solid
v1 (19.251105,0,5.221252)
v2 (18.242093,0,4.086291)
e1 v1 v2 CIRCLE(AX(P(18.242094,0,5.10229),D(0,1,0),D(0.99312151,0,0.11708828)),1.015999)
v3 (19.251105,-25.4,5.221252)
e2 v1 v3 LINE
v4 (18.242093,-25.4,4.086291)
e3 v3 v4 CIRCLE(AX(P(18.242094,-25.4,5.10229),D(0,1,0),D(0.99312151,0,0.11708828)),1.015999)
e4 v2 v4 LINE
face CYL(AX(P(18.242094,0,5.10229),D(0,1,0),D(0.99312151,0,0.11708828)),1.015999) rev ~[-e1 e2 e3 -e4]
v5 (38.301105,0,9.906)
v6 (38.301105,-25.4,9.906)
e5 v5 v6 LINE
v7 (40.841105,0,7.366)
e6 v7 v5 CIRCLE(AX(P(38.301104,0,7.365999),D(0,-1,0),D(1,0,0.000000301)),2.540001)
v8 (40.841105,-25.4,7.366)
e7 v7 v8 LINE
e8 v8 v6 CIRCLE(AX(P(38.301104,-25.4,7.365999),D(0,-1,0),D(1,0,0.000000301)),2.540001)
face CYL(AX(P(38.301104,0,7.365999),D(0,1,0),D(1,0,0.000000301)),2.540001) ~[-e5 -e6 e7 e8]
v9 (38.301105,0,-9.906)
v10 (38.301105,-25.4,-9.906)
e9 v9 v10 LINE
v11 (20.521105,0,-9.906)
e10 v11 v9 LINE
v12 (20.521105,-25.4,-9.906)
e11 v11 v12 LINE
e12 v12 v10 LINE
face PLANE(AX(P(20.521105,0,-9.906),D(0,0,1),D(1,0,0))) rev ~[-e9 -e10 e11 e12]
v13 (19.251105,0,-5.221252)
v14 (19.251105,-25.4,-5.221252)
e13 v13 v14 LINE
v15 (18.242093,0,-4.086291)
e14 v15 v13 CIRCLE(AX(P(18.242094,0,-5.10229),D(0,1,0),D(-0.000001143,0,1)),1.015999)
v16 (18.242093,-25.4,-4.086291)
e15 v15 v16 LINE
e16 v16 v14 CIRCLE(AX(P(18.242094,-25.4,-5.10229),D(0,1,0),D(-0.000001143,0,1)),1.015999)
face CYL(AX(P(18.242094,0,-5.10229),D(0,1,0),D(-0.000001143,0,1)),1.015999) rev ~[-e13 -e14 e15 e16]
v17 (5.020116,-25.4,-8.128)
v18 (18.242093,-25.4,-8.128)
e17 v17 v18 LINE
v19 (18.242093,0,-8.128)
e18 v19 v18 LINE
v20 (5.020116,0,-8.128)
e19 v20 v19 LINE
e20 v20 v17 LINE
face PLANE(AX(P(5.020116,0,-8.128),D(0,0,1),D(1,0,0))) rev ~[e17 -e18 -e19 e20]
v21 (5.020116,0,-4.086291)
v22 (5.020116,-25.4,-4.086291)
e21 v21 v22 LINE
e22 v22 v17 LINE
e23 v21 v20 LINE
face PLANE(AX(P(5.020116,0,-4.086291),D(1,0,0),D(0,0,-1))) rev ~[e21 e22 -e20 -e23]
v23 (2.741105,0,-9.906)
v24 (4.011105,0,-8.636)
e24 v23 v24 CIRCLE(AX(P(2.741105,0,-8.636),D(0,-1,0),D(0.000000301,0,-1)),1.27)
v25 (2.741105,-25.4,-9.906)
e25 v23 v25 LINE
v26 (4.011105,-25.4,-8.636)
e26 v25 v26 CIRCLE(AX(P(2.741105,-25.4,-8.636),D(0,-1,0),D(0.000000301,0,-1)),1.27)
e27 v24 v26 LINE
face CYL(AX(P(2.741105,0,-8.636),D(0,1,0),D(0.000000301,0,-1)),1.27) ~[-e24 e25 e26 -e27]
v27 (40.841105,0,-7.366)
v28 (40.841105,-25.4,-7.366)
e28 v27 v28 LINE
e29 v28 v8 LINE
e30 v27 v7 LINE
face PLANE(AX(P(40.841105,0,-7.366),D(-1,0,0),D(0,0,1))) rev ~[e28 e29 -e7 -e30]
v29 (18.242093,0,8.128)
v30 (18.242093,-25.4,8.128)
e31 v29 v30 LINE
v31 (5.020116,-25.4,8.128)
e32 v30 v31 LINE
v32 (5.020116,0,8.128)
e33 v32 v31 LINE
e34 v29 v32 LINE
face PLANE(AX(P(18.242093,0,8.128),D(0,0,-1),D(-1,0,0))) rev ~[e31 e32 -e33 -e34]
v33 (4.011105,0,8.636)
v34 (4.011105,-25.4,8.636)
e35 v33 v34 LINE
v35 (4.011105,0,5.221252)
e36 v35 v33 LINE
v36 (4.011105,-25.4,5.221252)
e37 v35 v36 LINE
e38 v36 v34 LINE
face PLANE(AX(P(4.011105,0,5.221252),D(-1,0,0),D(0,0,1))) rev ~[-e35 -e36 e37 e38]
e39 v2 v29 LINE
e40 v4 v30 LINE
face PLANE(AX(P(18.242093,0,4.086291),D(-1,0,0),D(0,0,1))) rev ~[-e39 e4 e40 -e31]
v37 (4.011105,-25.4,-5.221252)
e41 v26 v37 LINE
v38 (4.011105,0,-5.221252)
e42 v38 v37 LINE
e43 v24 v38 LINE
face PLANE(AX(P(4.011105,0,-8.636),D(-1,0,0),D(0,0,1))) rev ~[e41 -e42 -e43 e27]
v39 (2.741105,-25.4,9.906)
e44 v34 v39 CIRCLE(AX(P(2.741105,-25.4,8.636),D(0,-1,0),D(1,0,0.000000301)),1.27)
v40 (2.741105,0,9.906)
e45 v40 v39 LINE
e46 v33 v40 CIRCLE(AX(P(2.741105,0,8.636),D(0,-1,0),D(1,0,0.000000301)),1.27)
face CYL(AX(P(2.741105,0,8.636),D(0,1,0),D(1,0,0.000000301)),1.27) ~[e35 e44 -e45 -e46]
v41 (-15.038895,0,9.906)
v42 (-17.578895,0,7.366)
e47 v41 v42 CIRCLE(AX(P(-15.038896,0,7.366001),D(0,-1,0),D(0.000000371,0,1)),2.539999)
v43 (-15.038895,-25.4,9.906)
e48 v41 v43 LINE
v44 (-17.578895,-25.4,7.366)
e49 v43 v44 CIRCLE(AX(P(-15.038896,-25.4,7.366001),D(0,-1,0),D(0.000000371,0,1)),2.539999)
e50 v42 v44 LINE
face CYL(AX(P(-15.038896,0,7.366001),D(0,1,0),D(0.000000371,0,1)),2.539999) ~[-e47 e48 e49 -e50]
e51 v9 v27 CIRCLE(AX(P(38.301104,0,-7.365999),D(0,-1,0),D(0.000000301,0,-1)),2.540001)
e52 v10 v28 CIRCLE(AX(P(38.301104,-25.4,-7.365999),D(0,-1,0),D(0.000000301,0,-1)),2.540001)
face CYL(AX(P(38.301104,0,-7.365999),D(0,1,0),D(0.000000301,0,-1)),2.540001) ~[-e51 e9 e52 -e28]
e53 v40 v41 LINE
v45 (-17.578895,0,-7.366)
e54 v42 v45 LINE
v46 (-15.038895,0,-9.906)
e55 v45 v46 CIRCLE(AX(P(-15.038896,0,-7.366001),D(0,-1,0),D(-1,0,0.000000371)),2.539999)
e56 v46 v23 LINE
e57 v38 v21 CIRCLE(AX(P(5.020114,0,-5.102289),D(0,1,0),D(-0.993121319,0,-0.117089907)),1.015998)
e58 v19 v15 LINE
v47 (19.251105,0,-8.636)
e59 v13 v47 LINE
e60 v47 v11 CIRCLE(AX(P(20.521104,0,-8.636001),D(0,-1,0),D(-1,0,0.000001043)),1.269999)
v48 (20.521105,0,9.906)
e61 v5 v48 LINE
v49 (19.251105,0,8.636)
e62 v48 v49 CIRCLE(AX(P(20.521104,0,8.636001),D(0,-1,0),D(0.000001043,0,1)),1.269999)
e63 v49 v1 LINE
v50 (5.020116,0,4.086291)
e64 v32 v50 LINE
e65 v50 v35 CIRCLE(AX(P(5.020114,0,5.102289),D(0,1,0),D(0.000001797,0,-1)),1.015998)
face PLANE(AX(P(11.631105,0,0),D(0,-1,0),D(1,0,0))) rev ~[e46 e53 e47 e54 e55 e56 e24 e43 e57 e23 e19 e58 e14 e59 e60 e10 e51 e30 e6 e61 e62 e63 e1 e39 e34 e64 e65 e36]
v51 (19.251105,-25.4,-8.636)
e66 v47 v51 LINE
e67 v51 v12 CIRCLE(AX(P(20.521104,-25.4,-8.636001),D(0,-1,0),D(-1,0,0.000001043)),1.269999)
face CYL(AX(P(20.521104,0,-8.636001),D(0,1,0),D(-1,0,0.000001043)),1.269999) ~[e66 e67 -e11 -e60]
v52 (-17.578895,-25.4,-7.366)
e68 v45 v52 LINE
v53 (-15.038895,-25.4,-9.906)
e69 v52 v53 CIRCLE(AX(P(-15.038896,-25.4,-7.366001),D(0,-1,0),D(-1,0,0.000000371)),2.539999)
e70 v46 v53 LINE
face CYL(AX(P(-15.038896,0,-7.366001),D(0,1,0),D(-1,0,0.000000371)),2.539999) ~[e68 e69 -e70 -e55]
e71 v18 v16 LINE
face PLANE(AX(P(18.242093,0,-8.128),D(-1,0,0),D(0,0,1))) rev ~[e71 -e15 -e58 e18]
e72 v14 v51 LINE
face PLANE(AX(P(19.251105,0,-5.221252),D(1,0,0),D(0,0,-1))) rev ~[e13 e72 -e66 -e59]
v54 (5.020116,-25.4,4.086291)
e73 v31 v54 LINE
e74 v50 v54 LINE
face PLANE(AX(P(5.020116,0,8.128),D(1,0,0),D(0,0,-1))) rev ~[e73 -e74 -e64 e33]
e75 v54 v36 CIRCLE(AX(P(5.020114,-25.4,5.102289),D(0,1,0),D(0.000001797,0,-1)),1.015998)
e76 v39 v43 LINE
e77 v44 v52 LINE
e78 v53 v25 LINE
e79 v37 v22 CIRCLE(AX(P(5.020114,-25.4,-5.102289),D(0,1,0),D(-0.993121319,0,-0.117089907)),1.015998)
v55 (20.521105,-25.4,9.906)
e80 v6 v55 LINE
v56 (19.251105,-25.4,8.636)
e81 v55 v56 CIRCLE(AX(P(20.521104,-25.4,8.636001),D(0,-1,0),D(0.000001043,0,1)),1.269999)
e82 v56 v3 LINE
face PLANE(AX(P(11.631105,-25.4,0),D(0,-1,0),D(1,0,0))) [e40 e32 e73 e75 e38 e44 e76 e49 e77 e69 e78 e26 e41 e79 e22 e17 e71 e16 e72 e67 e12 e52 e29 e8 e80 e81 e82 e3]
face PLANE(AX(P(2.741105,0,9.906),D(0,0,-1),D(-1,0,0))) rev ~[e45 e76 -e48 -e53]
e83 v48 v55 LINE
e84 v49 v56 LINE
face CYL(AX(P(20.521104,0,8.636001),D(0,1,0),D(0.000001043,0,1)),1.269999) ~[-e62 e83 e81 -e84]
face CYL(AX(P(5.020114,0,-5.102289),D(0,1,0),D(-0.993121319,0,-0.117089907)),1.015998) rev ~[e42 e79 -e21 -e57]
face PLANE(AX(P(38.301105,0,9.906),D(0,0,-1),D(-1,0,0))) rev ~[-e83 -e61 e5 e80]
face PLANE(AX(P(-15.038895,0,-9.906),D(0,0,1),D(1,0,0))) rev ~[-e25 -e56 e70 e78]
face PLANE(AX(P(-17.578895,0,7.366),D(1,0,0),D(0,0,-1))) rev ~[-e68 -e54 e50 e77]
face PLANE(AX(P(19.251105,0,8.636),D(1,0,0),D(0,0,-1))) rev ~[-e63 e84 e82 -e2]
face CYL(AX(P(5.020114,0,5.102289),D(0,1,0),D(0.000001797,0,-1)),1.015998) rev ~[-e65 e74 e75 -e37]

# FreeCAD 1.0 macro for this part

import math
import FreeCAD as App
import Part
import Sketcher
Q = App.Units.Quantity

doc = App.newDocument("Part")
params = doc.addObject("Spreadsheet::Sheet", "Params")
for row, (alias, value) in enumerate([
    ("sketch1_radius", "0.1 in"),
    ("sketch1_radius2", "0.1 in"),
    ("sketch1_radius3", "0.1 in"),
    ("sketch1_radius4", "0.1 in"),
    ("sketch1_radius5", "0.05 in"),
    ("pad1_length", "1 in"),
], start=1):
    params.set(f"A{row}", alias)
    params.set(f"B{row}", "=" + value)
    params.setAlias(f"B{row}", alias)

body = doc.addObject("PartDesign::Body", "Body")

# Sketch on XZ plane
sketch1 = body.newObject("Sketcher::SketchObject", "Sketch")
sketch1.AttachmentSupport = (doc.getObject("XZ_Plane"), [""])
sketch1.MapMode = "FlatFace"
sketch1.addGeometry([
    Part.LineSegment(App.Vector(-17.578895, 7.366, 0), App.Vector(-17.578895, -7.366, 0)),  # 0
    Part.ArcOfCircle(Part.Circle(App.Vector(-15.038896, -7.366001, 0), App.Vector(0, 0, 1), 2.539999), math.radians(179.999979), math.radians(270.000021)),  # 1
    Part.LineSegment(App.Vector(-15.038895, -9.906, 0), App.Vector(2.741105, -9.906, 0)),  # 2
    Part.ArcOfCircle(Part.Circle(App.Vector(2.741105, -8.636, 0), App.Vector(0, 0, 1), 1.27), math.radians(-89.999983), math.radians(-0.000017)),  # 3
    Part.LineSegment(App.Vector(4.011105, -8.636, 0), App.Vector(4.011105, -5.221252, 0)),  # 4
    Part.ArcOfCircle(Part.Circle(App.Vector(5.020114, -5.102289, 0), App.Vector(0, 0, 1), 1.015998), math.radians(89.999897), math.radians(186.724182)),  # 5
    Part.LineSegment(App.Vector(5.020116, -4.086291, 0), App.Vector(5.020116, -8.128, 0)),  # 6
    Part.LineSegment(App.Vector(5.020116, -8.128, 0), App.Vector(18.242093, -8.128, 0)),  # 7
    Part.LineSegment(App.Vector(18.242093, -8.128, 0), App.Vector(18.242093, -4.086291, 0)),  # 8
    Part.ArcOfCircle(Part.Circle(App.Vector(18.242094, -5.10229, 0), App.Vector(0, 0, 1), 1.015999), math.radians(-6.724089), math.radians(90.000065)),  # 9
    Part.LineSegment(App.Vector(19.251105, -5.221252, 0), App.Vector(19.251105, -8.636, 0)),  # 10
    Part.ArcOfCircle(Part.Circle(App.Vector(20.521104, -8.636001, 0), App.Vector(0, 0, 1), 1.269999), math.radians(179.99994), math.radians(270.00006)),  # 11
    Part.LineSegment(App.Vector(20.521105, -9.906, 0), App.Vector(38.301105, -9.906, 0)),  # 12
    Part.ArcOfCircle(Part.Circle(App.Vector(38.301104, -7.365999, 0), App.Vector(0, 0, 1), 2.540001), math.radians(-89.999983), math.radians(-0.000017)),  # 13
    Part.LineSegment(App.Vector(40.841105, -7.366, 0), App.Vector(40.841105, 7.366, 0)),  # 14
    Part.ArcOfCircle(Part.Circle(App.Vector(38.301104, 7.365999, 0), App.Vector(0, 0, 1), 2.540001), math.radians(0.000017), math.radians(89.999983)),  # 15
    Part.LineSegment(App.Vector(38.301105, 9.906, 0), App.Vector(20.521105, 9.906, 0)),  # 16
    Part.ArcOfCircle(Part.Circle(App.Vector(20.521104, 8.636001, 0), App.Vector(0, 0, 1), 1.269999), math.radians(89.99994), math.radians(180.00006)),  # 17
    Part.LineSegment(App.Vector(19.251105, 8.636, 0), App.Vector(19.251105, 5.221252, 0)),  # 18
    Part.ArcOfCircle(Part.Circle(App.Vector(18.242094, 5.10229, 0), App.Vector(0, 0, 1), 1.015999), math.radians(-90.000065), math.radians(6.724089)),  # 19
    Part.LineSegment(App.Vector(18.242093, 4.086291, 0), App.Vector(18.242093, 8.128, 0)),  # 20
    Part.LineSegment(App.Vector(18.242093, 8.128, 0), App.Vector(5.020116, 8.128, 0)),  # 21
    Part.LineSegment(App.Vector(5.020116, 8.128, 0), App.Vector(5.020116, 4.086291, 0)),  # 22
    Part.ArcOfCircle(Part.Circle(App.Vector(5.020114, 5.102289, 0), App.Vector(0, 0, 1), 1.015998), math.radians(173.275818), math.radians(270.000103)),  # 23
    Part.LineSegment(App.Vector(4.011105, 5.221252, 0), App.Vector(4.011105, 8.636, 0)),  # 24
    Part.ArcOfCircle(Part.Circle(App.Vector(2.741105, 8.636, 0), App.Vector(0, 0, 1), 1.27), math.radians(0.000017), math.radians(89.999983)),  # 25
    Part.LineSegment(App.Vector(2.741105, 9.906, 0), App.Vector(-15.038895, 9.906, 0)),  # 26
    Part.ArcOfCircle(Part.Circle(App.Vector(-15.038896, 7.366001, 0), App.Vector(0, 0, 1), 2.539999), math.radians(89.999979), math.radians(180.000021)),  # 27
], False)
sketch1.addConstraint([
    Sketcher.Constraint("Coincident", 0, 2, 1, 1),
    Sketcher.Constraint("Coincident", 1, 2, 2, 1),
    Sketcher.Constraint("Coincident", 2, 2, 3, 1),
    Sketcher.Constraint("Coincident", 3, 2, 4, 1),
    Sketcher.Constraint("Coincident", 4, 2, 5, 2),
    Sketcher.Constraint("Coincident", 5, 1, 6, 1),
    Sketcher.Constraint("Coincident", 6, 2, 7, 1),
    Sketcher.Constraint("Coincident", 7, 2, 8, 1),
    Sketcher.Constraint("Coincident", 8, 2, 9, 2),
    Sketcher.Constraint("Coincident", 9, 1, 10, 1),
    Sketcher.Constraint("Coincident", 10, 2, 11, 1),
    Sketcher.Constraint("Coincident", 11, 2, 12, 1),
    Sketcher.Constraint("Coincident", 12, 2, 13, 1),
    Sketcher.Constraint("Coincident", 13, 2, 14, 1),
    Sketcher.Constraint("Coincident", 14, 2, 15, 1),
    Sketcher.Constraint("Coincident", 15, 2, 16, 1),
    Sketcher.Constraint("Coincident", 16, 2, 17, 1),
    Sketcher.Constraint("Coincident", 17, 2, 18, 1),
    Sketcher.Constraint("Coincident", 18, 2, 19, 2),
    Sketcher.Constraint("Coincident", 19, 1, 20, 1),
    Sketcher.Constraint("Coincident", 20, 2, 21, 1),
    Sketcher.Constraint("Coincident", 21, 2, 22, 1),
    Sketcher.Constraint("Coincident", 22, 2, 23, 2),
    Sketcher.Constraint("Coincident", 23, 1, 24, 1),
    Sketcher.Constraint("Coincident", 24, 2, 25, 1),
    Sketcher.Constraint("Coincident", 25, 2, 26, 1),
    Sketcher.Constraint("Coincident", 26, 2, 27, 1),
    Sketcher.Constraint("Coincident", 27, 2, 0, 1),
    Sketcher.Constraint("Vertical", 0),
    Sketcher.Constraint("Horizontal", 2),
    Sketcher.Constraint("Vertical", 4),
    Sketcher.Constraint("Vertical", 6),
    Sketcher.Constraint("Horizontal", 7),
    Sketcher.Constraint("Vertical", 8),
    Sketcher.Constraint("Vertical", 10),
    Sketcher.Constraint("Horizontal", 12),
    Sketcher.Constraint("Vertical", 14),
    Sketcher.Constraint("Horizontal", 16),
    Sketcher.Constraint("Vertical", 18),
    Sketcher.Constraint("Vertical", 20),
    Sketcher.Constraint("Horizontal", 21),
    Sketcher.Constraint("Vertical", 22),
    Sketcher.Constraint("Vertical", 24),
    Sketcher.Constraint("Horizontal", 26),
    Sketcher.Constraint("Radius", 1, Q("0.1 in")),
    Sketcher.Constraint("Radius", 13, Q("0.1 in")),
    Sketcher.Constraint("Radius", 15, Q("0.1 in")),
    Sketcher.Constraint("Radius", 27, Q("0.1 in")),
    Sketcher.Constraint("Radius", 3, Q("0.05 in")),
    Sketcher.Constraint("Radius", 5, Q("0.0399999 in")),
    Sketcher.Constraint("Radius", 9, Q("0.04 in")),
    Sketcher.Constraint("Radius", 11, Q("0.0499999 in")),
    Sketcher.Constraint("Radius", 17, Q("0.0499999 in")),
    Sketcher.Constraint("Radius", 19, Q("0.04 in")),
    Sketcher.Constraint("Radius", 23, Q("0.0399999 in")),
    Sketcher.Constraint("Radius", 25, Q("0.05 in")),
    Sketcher.Constraint("DistanceX", 2, 1, 2, 2, Q("0.7 in")),
    Sketcher.Constraint("DistanceX", 12, 1, 12, 2, Q("0.7 in")),
    Sketcher.Constraint("DistanceX", 16, 2, 16, 1, Q("0.7 in")),
    Sketcher.Constraint("DistanceX", 26, 2, 26, 1, Q("0.7 in")),
    Sketcher.Constraint("DistanceY", 0, 2, 0, 1, Q("0.58 in")),
    Sketcher.Constraint("DistanceY", 14, 1, 14, 2, Q("0.58 in")),
    Sketcher.Constraint("DistanceX", 1, 3, 3, 3, Q("0.7 in")),
    Sketcher.Constraint("DistanceX", 3, 3, 11, 3, Q("0.7 in")),
    Sketcher.Constraint("DistanceX", 11, 3, 13, 3, Q("0.7 in")),
    Sketcher.Constraint("DistanceX", 17, 3, 15, 3, Q("0.7 in")),
    Sketcher.Constraint("DistanceX", 25, 3, 17, 3, Q("0.7 in")),
    Sketcher.Constraint("DistanceX", 0, 2, 1, 2, Q("0.1 in")),
    Sketcher.Constraint("DistanceY", 1, 2, 0, 2, Q("0.1 in")),
    Sketcher.Constraint("DistanceX", 11, 3, 12, 2, Q("0.7000001 in")),
    Sketcher.Constraint("DistanceY", 12, 2, 13, 2, Q("0.1 in")),
    Sketcher.Constraint("DistanceX", 15, 2, 14, 2, Q("0.1 in")),
    Sketcher.Constraint("DistanceY", 14, 2, 15, 2, Q("0.1 in")),
    Sketcher.Constraint("DistanceX", 0, 2, 26, 2, Q("0.1 in")),
    Sketcher.Constraint("DistanceY", 27, 2, 26, 2, Q("0.1 in")),
    Sketcher.Constraint("DistanceY", 1, 3, -1, 1, Q("0.29 in")),
    Sketcher.Constraint("DistanceY", 11, 3, -1, 1, Q("0.3400001 in")),
    Sketcher.Constraint("DistanceY", 3, 2, -1, 1, Q("0.34 in")),
    Sketcher.Constraint("DistanceY", 6, 2, -1, 1, Q("0.32 in")),
    Sketcher.Constraint("DistanceY", 10, 2, -1, 1, Q("0.34 in")),
    Sketcher.Constraint("DistanceY", -1, 1, 17, 2, Q("0.34 in")),
    Sketcher.Constraint("DistanceY", -1, 1, 20, 2, Q("0.32 in")),
    Sketcher.Constraint("DistanceY", -1, 1, 24, 2, Q("0.34 in")),
    Sketcher.Constraint("DistanceY", 6, 2, 6, 1, Q("4.041709 mm")),
    Sketcher.Constraint("DistanceY", 8, 1, 8, 2, Q("4.041709 mm")),
    Sketcher.Constraint("DistanceY", 20, 1, 20, 2, Q("4.041709 mm")),
    Sketcher.Constraint("DistanceY", 22, 2, 22, 1, Q("4.041709 mm")),
    Sketcher.Constraint("DistanceX", 7, 1, 7, 2, Q("13.221977 mm")),
    Sketcher.Constraint("DistanceX", 21, 2, 21, 1, Q("13.221977 mm")),
    Sketcher.Constraint("DistanceY", 4, 1, 4, 2, Q("3.414748 mm")),
    Sketcher.Constraint("DistanceY", 10, 2, 10, 1, Q("3.414748 mm")),
    Sketcher.Constraint("DistanceY", 18, 2, 18, 1, Q("3.414748 mm")),
    Sketcher.Constraint("DistanceY", 24, 1, 24, 2, Q("3.414748 mm")),
    Sketcher.Constraint("DistanceX", 4, 2, 5, 1, Q("1.009011 mm")),
    Sketcher.Constraint("DistanceX", 19, 1, 18, 2, Q("1.009012 mm")),
    Sketcher.Constraint("DistanceX", 1, 3, -1, 1, Q("15.038896 mm")),
])
sketch1.setExpression("Constraints[44]", "Params.sketch1_radius")
sketch1.setExpression("Constraints[45]", "Params.sketch1_radius2")
sketch1.setExpression("Constraints[46]", "Params.sketch1_radius3")
sketch1.setExpression("Constraints[47]", "Params.sketch1_radius4")
sketch1.setExpression("Constraints[48]", "Params.sketch1_radius5")
pad1 = body.newObject("PartDesign::Pad", "Pad")
pad1.Profile = sketch1
pad1.setExpression("Length", "Params.pad1_length")

doc.recompute()
